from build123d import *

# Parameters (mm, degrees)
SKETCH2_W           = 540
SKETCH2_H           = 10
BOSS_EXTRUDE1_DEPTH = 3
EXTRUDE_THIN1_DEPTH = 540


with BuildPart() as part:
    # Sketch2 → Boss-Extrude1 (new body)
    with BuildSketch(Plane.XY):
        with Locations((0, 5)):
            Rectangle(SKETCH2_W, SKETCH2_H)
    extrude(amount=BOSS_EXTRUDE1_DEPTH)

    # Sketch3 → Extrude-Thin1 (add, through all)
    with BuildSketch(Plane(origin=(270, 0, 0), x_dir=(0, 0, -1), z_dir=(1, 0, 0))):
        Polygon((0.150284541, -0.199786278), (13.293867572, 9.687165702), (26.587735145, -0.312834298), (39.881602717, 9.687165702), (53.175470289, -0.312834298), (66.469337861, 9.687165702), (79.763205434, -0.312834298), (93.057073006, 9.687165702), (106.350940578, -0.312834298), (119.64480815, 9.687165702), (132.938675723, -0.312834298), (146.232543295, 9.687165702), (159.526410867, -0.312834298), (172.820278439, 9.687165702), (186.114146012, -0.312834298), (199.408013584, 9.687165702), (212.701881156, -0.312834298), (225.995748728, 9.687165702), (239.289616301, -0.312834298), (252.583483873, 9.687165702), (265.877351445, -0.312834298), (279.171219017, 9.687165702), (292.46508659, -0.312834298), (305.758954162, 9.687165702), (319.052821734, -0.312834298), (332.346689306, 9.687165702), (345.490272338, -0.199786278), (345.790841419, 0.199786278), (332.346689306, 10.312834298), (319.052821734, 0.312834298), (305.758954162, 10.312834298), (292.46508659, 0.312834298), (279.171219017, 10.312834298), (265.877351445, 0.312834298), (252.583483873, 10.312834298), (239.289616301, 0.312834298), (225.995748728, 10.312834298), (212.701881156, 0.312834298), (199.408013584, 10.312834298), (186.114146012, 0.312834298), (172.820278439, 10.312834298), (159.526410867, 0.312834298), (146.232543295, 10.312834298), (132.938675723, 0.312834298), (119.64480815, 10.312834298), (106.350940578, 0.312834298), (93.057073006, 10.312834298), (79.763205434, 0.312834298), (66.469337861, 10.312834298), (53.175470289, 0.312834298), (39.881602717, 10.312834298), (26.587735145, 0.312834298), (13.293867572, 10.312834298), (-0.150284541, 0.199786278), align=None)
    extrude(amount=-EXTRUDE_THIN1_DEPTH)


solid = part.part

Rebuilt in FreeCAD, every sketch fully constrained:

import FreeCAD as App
import Part
import Sketcher
from FreeCAD import Vector

doc = App.newDocument("Part")
body = doc.addObject("PartDesign::Body", "Body")

# Sketch on XY plane
sketch1 = body.newObject("Sketcher::SketchObject", "Sketch")
sketch1.AttachmentSupport = (doc.getObject("XY_Plane"), [""])
sketch1.MapMode = "FlatFace"
sketch1.addGeometry([
    Part.LineSegment(Vector(-270, 10, 0), Vector(-270, 0, 0)),
    Part.LineSegment(Vector(-270, 0, 0), Vector(270, 0, 0)),
    Part.LineSegment(Vector(270, 0, 0), Vector(270, 10, 0)),
    Part.LineSegment(Vector(270, 10, 0), Vector(-270, 10, 0)),
], False)
sketch1.addConstraint([
    Sketcher.Constraint("Coincident", 0, 2, 1, 1),
    Sketcher.Constraint("Coincident", 1, 2, 2, 1),
    Sketcher.Constraint("Coincident", 2, 2, 3, 1),
    Sketcher.Constraint("Coincident", 3, 2, 0, 1),
    Sketcher.Constraint("Vertical", 0),
    Sketcher.Constraint("Horizontal", 1),
    Sketcher.Constraint("Vertical", 2),
    Sketcher.Constraint("Horizontal", 3),
    Sketcher.Constraint("Symmetric", 0, 2, 1, 2, -1, 1),
    Sketcher.Constraint("DistanceX", 1, 1, 1, 2, 540.0),
    Sketcher.Constraint("DistanceY", 0, 2, 0, 1, 10.0),
])
pad1 = body.newObject("PartDesign::Pad", "Pad")
pad1.Profile = sketch1
pad1.Length = 3

# Sketch on YZ plane
sketch2 = body.newObject("Sketcher::SketchObject", "Sketch001")
sketch2.AttachmentSupport = (doc.getObject("YZ_Plane"), [""])
sketch2.MapMode = "FlatFace"
sketch2.AttachmentOffset = App.Placement(Vector(0, 0, 270), App.Rotation())
sketch2.addGeometry([
    Part.LineSegment(Vector(-0.2, -0.15, 0), Vector(9.69, -13.29, 0)),  # 0
    Part.LineSegment(Vector(9.69, -13.29, 0), Vector(-0.31, -26.59, 0)),  # 1
    Part.LineSegment(Vector(-0.31, -26.59, 0), Vector(9.69, -39.88, 0)),  # 2
    Part.LineSegment(Vector(9.69, -39.88, 0), Vector(-0.31, -53.18, 0)),  # 3
    Part.LineSegment(Vector(-0.31, -53.18, 0), Vector(9.69, -66.47, 0)),  # 4
    Part.LineSegment(Vector(9.69, -66.47, 0), Vector(-0.31, -79.76, 0)),  # 5
    Part.LineSegment(Vector(-0.31, -79.76, 0), Vector(9.69, -93.06, 0)),  # 6
    Part.LineSegment(Vector(9.69, -93.06, 0), Vector(-0.31, -106.35, 0)),  # 7
    Part.LineSegment(Vector(-0.31, -106.35, 0), Vector(9.69, -119.64, 0)),  # 8
    Part.LineSegment(Vector(9.69, -119.64, 0), Vector(-0.31, -132.94, 0)),  # 9
    Part.LineSegment(Vector(-0.31, -132.94, 0), Vector(9.69, -146.23, 0)),  # 10
    Part.LineSegment(Vector(9.69, -146.23, 0), Vector(-0.31, -159.53, 0)),  # 11
    Part.LineSegment(Vector(-0.31, -159.53, 0), Vector(9.69, -172.82, 0)),  # 12
    Part.LineSegment(Vector(9.69, -172.82, 0), Vector(-0.31, -186.11, 0)),  # 13
    Part.LineSegment(Vector(-0.31, -186.11, 0), Vector(9.69, -199.41, 0)),  # 14
    Part.LineSegment(Vector(9.69, -199.41, 0), Vector(-0.31, -212.7, 0)),  # 15
    Part.LineSegment(Vector(-0.31, -212.7, 0), Vector(9.69, -226, 0)),  # 16
    Part.LineSegment(Vector(9.69, -226, 0), Vector(-0.31, -239.29, 0)),  # 17
    Part.LineSegment(Vector(-0.31, -239.29, 0), Vector(9.69, -252.58, 0)),  # 18
    Part.LineSegment(Vector(9.69, -252.58, 0), Vector(-0.31, -265.88, 0)),  # 19
    Part.LineSegment(Vector(-0.31, -265.88, 0), Vector(9.69, -279.17, 0)),  # 20
    Part.LineSegment(Vector(9.69, -279.17, 0), Vector(-0.31, -292.47, 0)),  # 21
    Part.LineSegment(Vector(-0.31, -292.47, 0), Vector(9.69, -305.76, 0)),  # 22
    Part.LineSegment(Vector(9.69, -305.76, 0), Vector(-0.31, -319.05, 0)),  # 23
    Part.LineSegment(Vector(-0.31, -319.05, 0), Vector(9.69, -332.35, 0)),  # 24
    Part.LineSegment(Vector(9.69, -332.35, 0), Vector(-0.2, -345.49, 0)),  # 25
    Part.LineSegment(Vector(-0.2, -345.49, 0), Vector(0.2, -345.79, 0)),  # 26
    Part.LineSegment(Vector(0.2, -345.79, 0), Vector(10.31, -332.35, 0)),  # 27
    Part.LineSegment(Vector(10.31, -332.35, 0), Vector(0.31, -319.05, 0)),  # 28
    Part.LineSegment(Vector(0.31, -319.05, 0), Vector(10.31, -305.76, 0)),  # 29
    Part.LineSegment(Vector(10.31, -305.76, 0), Vector(0.31, -292.47, 0)),  # 30
    Part.LineSegment(Vector(0.31, -292.47, 0), Vector(10.31, -279.17, 0)),  # 31
    Part.LineSegment(Vector(10.31, -279.17, 0), Vector(0.31, -265.88, 0)),  # 32
    Part.LineSegment(Vector(0.31, -265.88, 0), Vector(10.31, -252.58, 0)),  # 33
    Part.LineSegment(Vector(10.31, -252.58, 0), Vector(0.31, -239.29, 0)),  # 34
    Part.LineSegment(Vector(0.31, -239.29, 0), Vector(10.31, -226, 0)),  # 35
    Part.LineSegment(Vector(10.31, -226, 0), Vector(0.31, -212.7, 0)),  # 36
    Part.LineSegment(Vector(0.31, -212.7, 0), Vector(10.31, -199.41, 0)),  # 37
    Part.LineSegment(Vector(10.31, -199.41, 0), Vector(0.31, -186.11, 0)),  # 38
    Part.LineSegment(Vector(0.31, -186.11, 0), Vector(10.31, -172.82, 0)),  # 39
    Part.LineSegment(Vector(10.31, -172.82, 0), Vector(0.31, -159.53, 0)),  # 40
    Part.LineSegment(Vector(0.31, -159.53, 0), Vector(10.31, -146.23, 0)),  # 41
    Part.LineSegment(Vector(10.31, -146.23, 0), Vector(0.31, -132.94, 0)),  # 42
    Part.LineSegment(Vector(0.31, -132.94, 0), Vector(10.31, -119.64, 0)),  # 43
    Part.LineSegment(Vector(10.31, -119.64, 0), Vector(0.31, -106.35, 0)),  # 44
    Part.LineSegment(Vector(0.31, -106.35, 0), Vector(10.31, -93.06, 0)),  # 45
    Part.LineSegment(Vector(10.31, -93.06, 0), Vector(0.31, -79.76, 0)),  # 46
    Part.LineSegment(Vector(0.31, -79.76, 0), Vector(10.31, -66.47, 0)),  # 47
    Part.LineSegment(Vector(10.31, -66.47, 0), Vector(0.31, -53.18, 0)),  # 48
    Part.LineSegment(Vector(0.31, -53.18, 0), Vector(10.31, -39.88, 0)),  # 49
    Part.LineSegment(Vector(10.31, -39.88, 0), Vector(0.31, -26.59, 0)),  # 50
    Part.LineSegment(Vector(0.31, -26.59, 0), Vector(10.31, -13.29, 0)),  # 51
    Part.LineSegment(Vector(10.31, -13.29, 0), Vector(0.2, 0.15, 0)),  # 52
    Part.LineSegment(Vector(0.2, 0.15, 0), Vector(-0.2, -0.15, 0)),  # 53
], False)
sketch2.addConstraint([
    Sketcher.Constraint("Coincident", 0, 2, 1, 1),
    Sketcher.Constraint("Coincident", 1, 2, 2, 1),
    Sketcher.Constraint("Coincident", 2, 2, 3, 1),
    Sketcher.Constraint("Coincident", 3, 2, 4, 1),
    Sketcher.Constraint("Coincident", 4, 2, 5, 1),
    Sketcher.Constraint("Coincident", 5, 2, 6, 1),
    Sketcher.Constraint("Coincident", 6, 2, 7, 1),
    Sketcher.Constraint("Coincident", 7, 2, 8, 1),
    Sketcher.Constraint("Coincident", 8, 2, 9, 1),
    Sketcher.Constraint("Coincident", 9, 2, 10, 1),
    Sketcher.Constraint("Coincident", 10, 2, 11, 1),
    Sketcher.Constraint("Coincident", 11, 2, 12, 1),
    Sketcher.Constraint("Coincident", 12, 2, 13, 1),
    Sketcher.Constraint("Coincident", 13, 2, 14, 1),
    Sketcher.Constraint("Coincident", 14, 2, 15, 1),
    Sketcher.Constraint("Coincident", 15, 2, 16, 1),
    Sketcher.Constraint("Coincident", 16, 2, 17, 1),
    Sketcher.Constraint("Coincident", 17, 2, 18, 1),
    Sketcher.Constraint("Coincident", 18, 2, 19, 1),
    Sketcher.Constraint("Coincident", 19, 2, 20, 1),
    Sketcher.Constraint("Coincident", 20, 2, 21, 1),
    Sketcher.Constraint("Coincident", 21, 2, 22, 1),
    Sketcher.Constraint("Coincident", 22, 2, 23, 1),
    Sketcher.Constraint("Coincident", 23, 2, 24, 1),
    Sketcher.Constraint("Coincident", 24, 2, 25, 1),
    Sketcher.Constraint("Coincident", 25, 2, 26, 1),
    Sketcher.Constraint("Coincident", 26, 2, 27, 1),
    Sketcher.Constraint("Coincident", 27, 2, 28, 1),
    Sketcher.Constraint("Coincident", 28, 2, 29, 1),
    Sketcher.Constraint("Coincident", 29, 2, 30, 1),
    Sketcher.Constraint("Coincident", 30, 2, 31, 1),
    Sketcher.Constraint("Coincident", 31, 2, 32, 1),
    Sketcher.Constraint("Coincident", 32, 2, 33, 1),
    Sketcher.Constraint("Coincident", 33, 2, 34, 1),
    Sketcher.Constraint("Coincident", 34, 2, 35, 1),
    Sketcher.Constraint("Coincident", 35, 2, 36, 1),
    Sketcher.Constraint("Coincident", 36, 2, 37, 1),
    Sketcher.Constraint("Coincident", 37, 2, 38, 1),
    Sketcher.Constraint("Coincident", 38, 2, 39, 1),
    Sketcher.Constraint("Coincident", 39, 2, 40, 1),
    Sketcher.Constraint("Coincident", 40, 2, 41, 1),
    Sketcher.Constraint("Coincident", 41, 2, 42, 1),
    Sketcher.Constraint("Coincident", 42, 2, 43, 1),
    Sketcher.Constraint("Coincident", 43, 2, 44, 1),
    Sketcher.Constraint("Coincident", 44, 2, 45, 1),
    Sketcher.Constraint("Coincident", 45, 2, 46, 1),
    Sketcher.Constraint("Coincident", 46, 2, 47, 1),
    Sketcher.Constraint("Coincident", 47, 2, 48, 1),
    Sketcher.Constraint("Coincident", 48, 2, 49, 1),
    Sketcher.Constraint("Coincident", 49, 2, 50, 1),
    Sketcher.Constraint("Coincident", 50, 2, 51, 1),
    Sketcher.Constraint("Coincident", 51, 2, 52, 1),
    Sketcher.Constraint("Coincident", 52, 2, 53, 1),
    Sketcher.Constraint("Coincident", 53, 2, 0, 1),
    Sketcher.Constraint("Symmetric", 52, 2, 53, 2, -1, 1),
    Sketcher.Constraint("Symmetric", 23, 2, 28, 2, -2),
    Sketcher.Constraint("Symmetric", 21, 2, 30, 2, -2),
    Sketcher.Constraint("Symmetric", 19, 2, 32, 2, -2),
    Sketcher.Constraint("Symmetric", 17, 2, 34, 2, -2),
    Sketcher.Constraint("Symmetric", 15, 2, 36, 2, -2),
    Sketcher.Constraint("Symmetric", 13, 2, 38, 2, -2),
    Sketcher.Constraint("Symmetric", 11, 2, 40, 2, -2),
    Sketcher.Constraint("Symmetric", 9, 2, 42, 2, -2),
    Sketcher.Constraint("Symmetric", 7, 2, 44, 2, -2),
    Sketcher.Constraint("Symmetric", 5, 2, 46, 2, -2),
    Sketcher.Constraint("Symmetric", 3, 2, 48, 2, -2),
    Sketcher.Constraint("Symmetric", 1, 2, 50, 2, -2),
    Sketcher.Constraint("Parallel", 0, 2),
    Sketcher.Constraint("Parallel", 1, 3),
    Sketcher.Constraint("Parallel", 2, 4),
    Sketcher.Constraint("Parallel", 3, 5),
    Sketcher.Constraint("Parallel", 4, 6),
    Sketcher.Constraint("Parallel", 5, 7),
    Sketcher.Constraint("Parallel", 6, 8),
    Sketcher.Constraint("Parallel", 7, 9),
    Sketcher.Constraint("Parallel", 8, 10),
    Sketcher.Constraint("Parallel", 9, 11),
    Sketcher.Constraint("Parallel", 10, 12),
    Sketcher.Constraint("Parallel", 11, 13),
    Sketcher.Constraint("Parallel", 12, 14),
    Sketcher.Constraint("Parallel", 13, 15),
    Sketcher.Constraint("Parallel", 14, 16),
    Sketcher.Constraint("Parallel", 15, 17),
    Sketcher.Constraint("Parallel", 16, 18),
    Sketcher.Constraint("Parallel", 17, 19),
    Sketcher.Constraint("Parallel", 18, 20),
    Sketcher.Constraint("Parallel", 19, 21),
    Sketcher.Constraint("Parallel", 20, 22),
    Sketcher.Constraint("Parallel", 21, 23),
    Sketcher.Constraint("Parallel", 22, 24),
    Sketcher.Constraint("Parallel", 23, 25),
    Sketcher.Constraint("Perpendicular", 25, 26),
    Sketcher.Constraint("Perpendicular", 26, 27),
    Sketcher.Constraint("Parallel", 24, 28),
    Sketcher.Constraint("Parallel", 27, 29),
    Sketcher.Constraint("Parallel", 28, 30),
    Sketcher.Constraint("Parallel", 29, 31),
    Sketcher.Constraint("Parallel", 30, 32),
    Sketcher.Constraint("Parallel", 31, 33),
    Sketcher.Constraint("Parallel", 32, 34),
    Sketcher.Constraint("Parallel", 33, 35),
    Sketcher.Constraint("Parallel", 34, 36),
    Sketcher.Constraint("Parallel", 35, 37),
    Sketcher.Constraint("Parallel", 36, 38),
    Sketcher.Constraint("Parallel", 37, 39),
    Sketcher.Constraint("Parallel", 38, 40),
    Sketcher.Constraint("Parallel", 39, 41),
    Sketcher.Constraint("Parallel", 40, 42),
    Sketcher.Constraint("Parallel", 41, 43),
    Sketcher.Constraint("Parallel", 42, 44),
    Sketcher.Constraint("Parallel", 43, 45),
    Sketcher.Constraint("Parallel", 44, 46),
    Sketcher.Constraint("Parallel", 45, 47),
    Sketcher.Constraint("Parallel", 46, 48),
    Sketcher.Constraint("Parallel", 47, 49),
    Sketcher.Constraint("Parallel", 48, 50),
    Sketcher.Constraint("Parallel", 49, 51),
    Sketcher.Constraint("Parallel", 50, 52),
    Sketcher.Constraint("Perpendicular", 52, 53),
    Sketcher.Constraint("Horizontal", 24, 2, 27, 2),
    Sketcher.Constraint("Horizontal", 22, 2, 29, 2),
    Sketcher.Constraint("Horizontal", 20, 2, 31, 2),
    Sketcher.Constraint("Horizontal", 18, 2, 33, 2),
    Sketcher.Constraint("Horizontal", 16, 2, 35, 2),
    Sketcher.Constraint("Horizontal", 14, 2, 37, 2),
    Sketcher.Constraint("Horizontal", 12, 2, 39, 2),
    Sketcher.Constraint("Horizontal", 10, 2, 41, 2),
    Sketcher.Constraint("Horizontal", 8, 2, 43, 2),
    Sketcher.Constraint("Horizontal", 6, 2, 45, 2),
    Sketcher.Constraint("Horizontal", 4, 2, 47, 2),
    Sketcher.Constraint("Horizontal", 2, 2, 49, 2),
    Sketcher.Constraint("Horizontal", 0, 2, 51, 2),
    Sketcher.Constraint("Vertical", 0, 2, 2, 2),
    Sketcher.Constraint("Vertical", 2, 2, 4, 2),
    Sketcher.Constraint("Vertical", 4, 2, 6, 2),
    Sketcher.Constraint("Vertical", 6, 2, 8, 2),
    Sketcher.Constraint("Vertical", 8, 2, 10, 2),
    Sketcher.Constraint("Vertical", 10, 2, 12, 2),
    Sketcher.Constraint("Vertical", 12, 2, 14, 2),
    Sketcher.Constraint("Vertical", 14, 2, 16, 2),
    Sketcher.Constraint("Vertical", 16, 2, 18, 2),
    Sketcher.Constraint("Vertical", 18, 2, 20, 2),
    Sketcher.Constraint("Vertical", 20, 2, 22, 2),
    Sketcher.Constraint("Vertical", 22, 2, 24, 2),
    Sketcher.Constraint("Vertical", 26, 2, 52, 2),
    Sketcher.Constraint("Vertical", 25, 2, 53, 2),
    Sketcher.Constraint("DistanceX", 1, 2, 0, 2, 10.0),
    Sketcher.Constraint("Distance", 26, 0.5),
    Sketcher.Constraint("Distance", 1, 16.635111),
])
pad2 = body.newObject("PartDesign::Pad", "Pad001")
pad2.Profile = sketch2
pad2.Length = 540
pad2.Reversed = True

doc.recompute()
